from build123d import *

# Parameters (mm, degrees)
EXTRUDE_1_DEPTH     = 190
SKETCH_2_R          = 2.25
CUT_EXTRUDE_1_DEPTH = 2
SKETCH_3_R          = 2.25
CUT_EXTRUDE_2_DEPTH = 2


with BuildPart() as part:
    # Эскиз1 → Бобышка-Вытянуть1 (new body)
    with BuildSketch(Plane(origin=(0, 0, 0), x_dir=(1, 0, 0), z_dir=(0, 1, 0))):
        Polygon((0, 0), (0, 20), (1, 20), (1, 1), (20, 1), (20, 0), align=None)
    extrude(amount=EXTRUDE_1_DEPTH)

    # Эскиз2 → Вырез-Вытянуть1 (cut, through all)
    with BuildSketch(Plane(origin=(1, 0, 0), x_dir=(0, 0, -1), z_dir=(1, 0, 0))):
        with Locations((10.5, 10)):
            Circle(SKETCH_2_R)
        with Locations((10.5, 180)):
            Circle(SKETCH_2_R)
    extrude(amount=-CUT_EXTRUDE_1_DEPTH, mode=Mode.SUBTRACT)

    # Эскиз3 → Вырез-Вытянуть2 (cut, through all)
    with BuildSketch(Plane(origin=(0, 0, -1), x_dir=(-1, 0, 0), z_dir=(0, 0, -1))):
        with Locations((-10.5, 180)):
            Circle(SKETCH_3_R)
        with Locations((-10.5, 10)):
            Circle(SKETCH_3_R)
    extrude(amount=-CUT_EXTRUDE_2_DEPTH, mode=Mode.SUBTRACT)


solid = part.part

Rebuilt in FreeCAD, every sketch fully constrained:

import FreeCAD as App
import Part
import Sketcher

V = App.Vector


def add_polygon(sketch, points):
    """Adds a closed chain of lines whose ends are joined by coincident constraints."""
    first, n = sketch.GeometryCount, len(points)
    for a, b in zip(points, points[1:] + points[:1]):
        sketch.addGeometry(Part.LineSegment(App.Vector(*a, 0), App.Vector(*b, 0)), False)
    for i in range(n):
        sketch.addConstraint(Sketcher.Constraint("Coincident", first + i, 2, first + (i + 1) % n, 1))

doc = App.newDocument("Part")
params = doc.addObject("Spreadsheet::Sheet", "Params")
for row, (alias, value) in enumerate([
    ("sketch1_width", "20 mm"),
    ("sketch1_width2", "19 mm"),
    ("pad1_length", "190 mm"),
    ("sketch2_diameter", "4.5 mm"),
    ("sketch3_diameter", "4.5 mm"),
], start=1):
    params.set(f"A{row}", alias)
    params.set(f"B{row}", "=" + value)
    params.setAlias(f"B{row}", alias)

body = doc.addObject("PartDesign::Body", "Body")

# Sketch on XZ plane
sketch1 = doc.addObject("Sketcher::SketchObject", "Sketch")
body.addObject(sketch1)
sketch1.AttachmentSupport = (doc.XZ_Plane, [""])
sketch1.MapMode = "FlatFace"
add_polygon(sketch1, [(0, -20), (0, 0), (20, 0), (20, -1), (1, -1), (1, -20)])  # lines 0-5
sketch1.addConstraint([
    Sketcher.Constraint("Vertical", 0),
    Sketcher.Constraint("Horizontal", 1),
    Sketcher.Constraint("Vertical", 2),
    Sketcher.Constraint("Horizontal", 3),
    Sketcher.Constraint("Vertical", 4),
    Sketcher.Constraint("Horizontal", 5),
    Sketcher.Constraint("Coincident", 0, 2, -1, 1),
    Sketcher.Constraint("Equal", 1, 0),
    Sketcher.Constraint("Equal", 5, 2),
    Sketcher.Constraint("DistanceX", 1, 1, 1, 2, 20.0),
    Sketcher.Constraint("DistanceX", 3, 2, 3, 1, 19.0),
])
sketch1.setExpression("Constraints[15]", "Params.sketch1_width")
sketch1.setExpression("Constraints[16]", "Params.sketch1_width2")
pad1 = doc.addObject("PartDesign::Pad", "Pad")
body.addObject(pad1)
pad1.Profile = sketch1
pad1.setExpression("Length", "Params.pad1_length")
pad1.Reversed = True

# Sketch on YZ plane
sketch2 = doc.addObject("Sketcher::SketchObject", "Sketch001")
body.addObject(sketch2)
sketch2.AttachmentSupport = (doc.YZ_Plane, [""])
sketch2.MapMode = "FlatFace"
sketch2.AttachmentOffset = App.Placement(V(0, 0, 1), App.Rotation())
sketch2.addGeometry([
    Part.Circle(V(10, -10.5, 0), V(0, 0, 1), 2.2),
    Part.Circle(V(180, -10.5, 0), V(0, 0, 1), 2.2),
], False)
sketch2.addConstraint([
    Sketcher.Constraint("Equal", 0, 1),
    Sketcher.Constraint("Horizontal", 0, 3, 1, 3),
    Sketcher.Constraint("Diameter", 0, 4.5),
    Sketcher.Constraint("DistanceX", -1, 1, 0, 3, 10.0),
    Sketcher.Constraint("DistanceX", -1, 1, 1, 3, 180.0),
    Sketcher.Constraint("DistanceY", 0, 3, -1, 1, 10.5),
])
sketch2.setExpression("Constraints[2]", "Params.sketch2_diameter")
pocket1 = doc.addObject("PartDesign::Pocket", "Pocket")
body.addObject(pocket1)
pocket1.Profile = sketch2
pocket1.Type = "ThroughAll"

# Sketch on XY plane
sketch3 = doc.addObject("Sketcher::SketchObject", "Sketch002")
body.addObject(sketch3)
sketch3.AttachmentSupport = (doc.XY_Plane, [""])
sketch3.MapMode = "FlatFace"
sketch3.AttachmentOffset = App.Placement(V(0, 0, -1), App.Rotation())
sketch3.addGeometry([
    Part.Circle(V(10.5, 180, 0), V(0, 0, 1), 2.2),
    Part.Circle(V(10.5, 10, 0), V(0, 0, 1), 2.2),
], False)
sketch3.addConstraint([
    Sketcher.Constraint("Equal", 0, 1),
    Sketcher.Constraint("Vertical", 0, 3, 1, 3),
    Sketcher.Constraint("Diameter", 0, 4.5),
    Sketcher.Constraint("DistanceY", -1, 1, 0, 3, 180.0),
    Sketcher.Constraint("DistanceY", -1, 1, 1, 3, 10.0),
    Sketcher.Constraint("DistanceX", -1, 1, 0, 3, 10.5),
])
sketch3.setExpression("Constraints[2]", "Params.sketch3_diameter")
pocket2 = doc.addObject("PartDesign::Pocket", "Pocket001")
body.addObject(pocket2)
pocket2.Profile = sketch3
pocket2.Type = "ThroughAll"
pocket2.Reversed = True

doc.recompute()
